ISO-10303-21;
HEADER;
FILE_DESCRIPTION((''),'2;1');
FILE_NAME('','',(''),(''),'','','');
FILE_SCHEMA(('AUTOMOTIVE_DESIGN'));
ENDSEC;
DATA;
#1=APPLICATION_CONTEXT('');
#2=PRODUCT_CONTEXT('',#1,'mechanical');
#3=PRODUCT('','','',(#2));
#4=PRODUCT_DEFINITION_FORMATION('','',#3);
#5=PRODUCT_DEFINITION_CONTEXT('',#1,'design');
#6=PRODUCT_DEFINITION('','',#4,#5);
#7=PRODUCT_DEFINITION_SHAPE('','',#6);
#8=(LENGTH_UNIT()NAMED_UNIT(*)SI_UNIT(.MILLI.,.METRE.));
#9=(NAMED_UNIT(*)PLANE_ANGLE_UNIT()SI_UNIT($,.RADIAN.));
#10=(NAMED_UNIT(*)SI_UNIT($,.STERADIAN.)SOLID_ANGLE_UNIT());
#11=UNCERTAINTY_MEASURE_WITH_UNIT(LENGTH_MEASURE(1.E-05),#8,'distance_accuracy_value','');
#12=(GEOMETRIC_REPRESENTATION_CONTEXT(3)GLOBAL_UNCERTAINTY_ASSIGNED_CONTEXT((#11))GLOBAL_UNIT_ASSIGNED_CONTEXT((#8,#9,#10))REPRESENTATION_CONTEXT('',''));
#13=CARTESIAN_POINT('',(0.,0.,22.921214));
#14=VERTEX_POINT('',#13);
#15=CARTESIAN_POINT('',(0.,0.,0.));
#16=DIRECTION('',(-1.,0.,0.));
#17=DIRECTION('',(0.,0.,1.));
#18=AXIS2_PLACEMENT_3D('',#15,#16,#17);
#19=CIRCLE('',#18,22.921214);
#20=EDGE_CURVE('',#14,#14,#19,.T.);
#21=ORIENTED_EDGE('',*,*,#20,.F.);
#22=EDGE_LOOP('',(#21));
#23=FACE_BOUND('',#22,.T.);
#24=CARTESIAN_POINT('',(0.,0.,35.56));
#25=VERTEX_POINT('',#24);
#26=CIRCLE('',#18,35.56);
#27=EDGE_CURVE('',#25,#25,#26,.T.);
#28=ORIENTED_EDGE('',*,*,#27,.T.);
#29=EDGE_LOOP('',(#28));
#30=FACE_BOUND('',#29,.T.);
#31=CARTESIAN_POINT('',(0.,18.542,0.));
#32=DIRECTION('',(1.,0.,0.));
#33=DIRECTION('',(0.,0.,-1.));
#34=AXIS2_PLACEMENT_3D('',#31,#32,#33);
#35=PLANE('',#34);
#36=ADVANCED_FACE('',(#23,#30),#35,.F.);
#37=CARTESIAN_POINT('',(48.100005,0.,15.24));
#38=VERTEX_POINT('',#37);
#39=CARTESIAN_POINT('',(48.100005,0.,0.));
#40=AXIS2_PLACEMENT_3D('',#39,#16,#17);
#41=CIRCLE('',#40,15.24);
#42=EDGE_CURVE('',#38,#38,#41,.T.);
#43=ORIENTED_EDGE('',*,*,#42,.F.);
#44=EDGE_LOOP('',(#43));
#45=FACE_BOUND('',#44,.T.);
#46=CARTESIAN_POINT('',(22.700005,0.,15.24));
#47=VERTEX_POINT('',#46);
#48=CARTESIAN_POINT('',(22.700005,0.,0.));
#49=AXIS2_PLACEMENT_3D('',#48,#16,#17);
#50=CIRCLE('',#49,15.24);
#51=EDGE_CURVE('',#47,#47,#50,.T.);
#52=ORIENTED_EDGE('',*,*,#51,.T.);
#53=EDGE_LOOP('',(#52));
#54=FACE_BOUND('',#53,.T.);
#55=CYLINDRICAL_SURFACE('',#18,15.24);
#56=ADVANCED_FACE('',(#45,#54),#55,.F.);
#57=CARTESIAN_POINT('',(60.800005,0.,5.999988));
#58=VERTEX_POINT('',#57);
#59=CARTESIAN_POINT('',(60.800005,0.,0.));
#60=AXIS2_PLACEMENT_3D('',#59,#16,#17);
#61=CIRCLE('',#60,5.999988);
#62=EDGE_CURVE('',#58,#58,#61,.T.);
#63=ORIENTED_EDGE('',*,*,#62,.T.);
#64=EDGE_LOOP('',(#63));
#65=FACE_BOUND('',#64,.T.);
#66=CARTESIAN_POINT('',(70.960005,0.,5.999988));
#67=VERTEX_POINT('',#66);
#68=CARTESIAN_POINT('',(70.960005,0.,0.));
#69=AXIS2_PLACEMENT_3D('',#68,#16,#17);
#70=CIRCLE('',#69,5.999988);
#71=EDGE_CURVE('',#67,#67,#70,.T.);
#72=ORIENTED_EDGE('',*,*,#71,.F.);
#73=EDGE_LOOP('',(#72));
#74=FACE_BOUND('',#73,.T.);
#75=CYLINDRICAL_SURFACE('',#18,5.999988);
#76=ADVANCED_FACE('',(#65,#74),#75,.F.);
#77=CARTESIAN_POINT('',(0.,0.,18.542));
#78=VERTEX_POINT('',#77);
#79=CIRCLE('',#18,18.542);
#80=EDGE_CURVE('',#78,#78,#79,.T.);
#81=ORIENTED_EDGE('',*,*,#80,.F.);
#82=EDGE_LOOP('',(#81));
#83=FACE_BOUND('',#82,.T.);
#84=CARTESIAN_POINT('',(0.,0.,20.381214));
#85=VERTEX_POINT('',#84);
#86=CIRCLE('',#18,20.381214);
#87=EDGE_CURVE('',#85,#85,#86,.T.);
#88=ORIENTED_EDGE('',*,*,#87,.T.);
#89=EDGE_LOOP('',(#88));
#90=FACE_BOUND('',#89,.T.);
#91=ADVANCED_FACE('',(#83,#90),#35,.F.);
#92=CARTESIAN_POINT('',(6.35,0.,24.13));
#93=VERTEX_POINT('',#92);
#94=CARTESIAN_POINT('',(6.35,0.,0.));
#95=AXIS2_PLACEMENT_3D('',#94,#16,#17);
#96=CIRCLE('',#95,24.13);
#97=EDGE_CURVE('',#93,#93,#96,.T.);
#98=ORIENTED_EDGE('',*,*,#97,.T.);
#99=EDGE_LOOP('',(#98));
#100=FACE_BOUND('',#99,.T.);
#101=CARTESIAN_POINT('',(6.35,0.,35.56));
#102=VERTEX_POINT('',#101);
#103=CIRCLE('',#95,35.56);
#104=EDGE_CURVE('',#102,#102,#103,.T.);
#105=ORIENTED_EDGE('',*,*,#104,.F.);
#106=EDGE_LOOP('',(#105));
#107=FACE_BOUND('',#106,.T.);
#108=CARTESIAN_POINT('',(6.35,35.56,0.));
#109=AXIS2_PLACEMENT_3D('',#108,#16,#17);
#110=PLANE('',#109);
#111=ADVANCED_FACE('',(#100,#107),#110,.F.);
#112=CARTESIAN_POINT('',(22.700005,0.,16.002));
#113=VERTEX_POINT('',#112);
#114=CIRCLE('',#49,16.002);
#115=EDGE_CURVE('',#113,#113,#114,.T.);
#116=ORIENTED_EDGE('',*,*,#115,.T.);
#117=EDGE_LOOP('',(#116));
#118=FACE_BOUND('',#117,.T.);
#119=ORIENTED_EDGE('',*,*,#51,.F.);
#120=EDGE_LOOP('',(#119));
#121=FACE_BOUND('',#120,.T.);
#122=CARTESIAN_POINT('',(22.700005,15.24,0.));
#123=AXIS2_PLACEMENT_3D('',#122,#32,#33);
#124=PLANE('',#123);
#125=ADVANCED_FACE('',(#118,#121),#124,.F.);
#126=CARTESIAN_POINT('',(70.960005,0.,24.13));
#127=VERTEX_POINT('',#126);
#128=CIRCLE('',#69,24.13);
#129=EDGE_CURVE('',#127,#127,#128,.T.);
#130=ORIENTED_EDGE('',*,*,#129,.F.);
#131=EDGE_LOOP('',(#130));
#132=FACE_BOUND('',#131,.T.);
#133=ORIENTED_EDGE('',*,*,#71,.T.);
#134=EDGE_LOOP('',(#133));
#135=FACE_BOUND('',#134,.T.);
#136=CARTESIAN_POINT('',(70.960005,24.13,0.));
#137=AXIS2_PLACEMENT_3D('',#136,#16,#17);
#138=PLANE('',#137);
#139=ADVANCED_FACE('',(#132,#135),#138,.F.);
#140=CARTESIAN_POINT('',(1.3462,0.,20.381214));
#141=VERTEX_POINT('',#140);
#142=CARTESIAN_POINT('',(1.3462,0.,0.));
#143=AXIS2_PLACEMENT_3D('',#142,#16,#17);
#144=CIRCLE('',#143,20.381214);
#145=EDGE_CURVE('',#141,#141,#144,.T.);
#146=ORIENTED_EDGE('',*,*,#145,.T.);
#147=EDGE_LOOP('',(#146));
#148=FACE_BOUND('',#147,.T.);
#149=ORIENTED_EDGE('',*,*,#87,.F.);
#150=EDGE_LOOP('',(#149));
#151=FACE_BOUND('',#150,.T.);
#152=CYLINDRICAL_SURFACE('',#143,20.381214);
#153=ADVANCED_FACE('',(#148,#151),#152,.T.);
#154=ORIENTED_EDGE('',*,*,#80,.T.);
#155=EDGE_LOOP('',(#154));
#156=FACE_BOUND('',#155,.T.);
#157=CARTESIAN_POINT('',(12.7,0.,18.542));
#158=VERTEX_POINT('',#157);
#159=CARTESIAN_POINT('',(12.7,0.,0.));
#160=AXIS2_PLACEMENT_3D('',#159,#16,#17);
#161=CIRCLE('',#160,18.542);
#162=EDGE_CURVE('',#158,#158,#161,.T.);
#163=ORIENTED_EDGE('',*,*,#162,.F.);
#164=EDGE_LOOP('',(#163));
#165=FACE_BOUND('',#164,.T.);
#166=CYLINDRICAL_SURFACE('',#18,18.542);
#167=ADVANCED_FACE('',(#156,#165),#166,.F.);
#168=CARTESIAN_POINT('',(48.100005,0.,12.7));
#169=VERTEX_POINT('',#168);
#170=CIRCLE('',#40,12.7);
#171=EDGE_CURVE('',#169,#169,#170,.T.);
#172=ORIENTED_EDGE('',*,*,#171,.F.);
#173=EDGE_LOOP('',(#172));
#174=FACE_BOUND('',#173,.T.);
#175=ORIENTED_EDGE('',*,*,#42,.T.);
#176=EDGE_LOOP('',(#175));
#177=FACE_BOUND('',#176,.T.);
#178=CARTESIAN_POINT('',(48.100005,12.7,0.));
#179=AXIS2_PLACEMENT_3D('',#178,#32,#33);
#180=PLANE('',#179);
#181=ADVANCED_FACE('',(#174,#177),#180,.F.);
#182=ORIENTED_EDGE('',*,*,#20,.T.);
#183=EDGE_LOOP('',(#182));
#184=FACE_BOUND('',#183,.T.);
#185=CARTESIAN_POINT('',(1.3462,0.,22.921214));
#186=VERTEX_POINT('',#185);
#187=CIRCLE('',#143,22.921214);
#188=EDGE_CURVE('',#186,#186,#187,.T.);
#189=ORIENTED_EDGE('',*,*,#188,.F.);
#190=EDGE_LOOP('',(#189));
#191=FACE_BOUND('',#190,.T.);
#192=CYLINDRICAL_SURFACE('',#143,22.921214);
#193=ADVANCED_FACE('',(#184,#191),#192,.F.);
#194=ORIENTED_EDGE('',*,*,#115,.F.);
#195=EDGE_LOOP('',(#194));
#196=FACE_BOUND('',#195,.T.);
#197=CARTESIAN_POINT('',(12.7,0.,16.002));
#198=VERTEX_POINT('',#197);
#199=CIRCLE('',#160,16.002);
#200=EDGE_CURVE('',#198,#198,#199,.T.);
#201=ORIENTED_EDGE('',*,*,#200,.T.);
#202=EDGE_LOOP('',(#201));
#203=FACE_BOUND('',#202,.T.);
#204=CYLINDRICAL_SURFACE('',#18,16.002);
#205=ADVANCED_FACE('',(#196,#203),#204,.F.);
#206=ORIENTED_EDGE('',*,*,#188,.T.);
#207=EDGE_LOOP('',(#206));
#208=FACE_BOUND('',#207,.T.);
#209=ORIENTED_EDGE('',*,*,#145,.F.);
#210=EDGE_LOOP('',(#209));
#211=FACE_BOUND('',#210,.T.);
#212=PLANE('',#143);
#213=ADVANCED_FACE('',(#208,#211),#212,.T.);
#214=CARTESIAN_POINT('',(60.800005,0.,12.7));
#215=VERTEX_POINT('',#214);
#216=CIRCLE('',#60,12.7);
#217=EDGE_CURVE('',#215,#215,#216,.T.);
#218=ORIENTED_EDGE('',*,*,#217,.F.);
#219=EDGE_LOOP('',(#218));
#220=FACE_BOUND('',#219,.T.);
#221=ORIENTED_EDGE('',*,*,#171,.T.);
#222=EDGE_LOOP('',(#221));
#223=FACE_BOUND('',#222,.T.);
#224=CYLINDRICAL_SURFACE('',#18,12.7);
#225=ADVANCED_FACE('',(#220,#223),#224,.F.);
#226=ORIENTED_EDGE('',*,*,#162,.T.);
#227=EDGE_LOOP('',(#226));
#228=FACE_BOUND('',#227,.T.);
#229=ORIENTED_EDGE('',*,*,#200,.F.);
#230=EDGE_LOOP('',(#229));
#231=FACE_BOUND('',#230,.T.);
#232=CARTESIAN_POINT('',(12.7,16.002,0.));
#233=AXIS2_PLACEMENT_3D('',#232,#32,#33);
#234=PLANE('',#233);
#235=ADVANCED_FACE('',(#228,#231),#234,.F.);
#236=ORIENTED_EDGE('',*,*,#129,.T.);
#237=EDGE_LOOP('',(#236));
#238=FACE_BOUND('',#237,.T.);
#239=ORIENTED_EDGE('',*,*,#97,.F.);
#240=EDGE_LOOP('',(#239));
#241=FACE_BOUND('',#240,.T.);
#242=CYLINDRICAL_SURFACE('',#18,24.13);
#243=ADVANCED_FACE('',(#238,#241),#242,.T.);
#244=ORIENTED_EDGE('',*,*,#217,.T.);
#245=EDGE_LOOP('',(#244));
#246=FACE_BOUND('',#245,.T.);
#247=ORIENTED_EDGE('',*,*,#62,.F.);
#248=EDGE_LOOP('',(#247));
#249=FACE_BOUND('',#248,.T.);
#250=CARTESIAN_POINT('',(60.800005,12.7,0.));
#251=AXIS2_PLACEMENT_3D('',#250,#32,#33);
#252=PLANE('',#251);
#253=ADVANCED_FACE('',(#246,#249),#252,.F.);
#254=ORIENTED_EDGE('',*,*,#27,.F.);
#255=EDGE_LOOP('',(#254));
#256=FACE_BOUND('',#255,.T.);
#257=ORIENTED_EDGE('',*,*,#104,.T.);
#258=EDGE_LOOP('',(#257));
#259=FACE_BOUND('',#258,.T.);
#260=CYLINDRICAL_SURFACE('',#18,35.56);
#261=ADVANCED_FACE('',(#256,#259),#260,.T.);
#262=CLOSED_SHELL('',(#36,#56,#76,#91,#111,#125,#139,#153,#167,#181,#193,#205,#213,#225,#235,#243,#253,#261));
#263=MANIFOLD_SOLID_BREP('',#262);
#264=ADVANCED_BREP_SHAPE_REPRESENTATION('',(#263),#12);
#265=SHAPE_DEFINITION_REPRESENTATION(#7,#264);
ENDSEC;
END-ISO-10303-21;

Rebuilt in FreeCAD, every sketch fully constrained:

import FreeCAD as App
import Part
import Sketcher

V = App.Vector
Q = App.Units.Quantity

doc = App.newDocument("Part")
params = doc.addObject("Spreadsheet::Sheet", "Params")
for row, (alias, value) in enumerate([
    ("sketch1_width", "1 in"),
    ("sketch1_width2", "0.5 in"),
    ("sketch1_width3", "0.4 in"),
    ("sketch1_height", "0.1 in"),
    ("sketch1_width4", "0.25 in"),
    ("revolution_angle", "360 deg"),
    ("pocket1_length", "0.053 in"),
], start=1):
    params.set(f"A{row}", alias)
    params.set(f"B{row}", "=" + value)
    params.setAlias(f"B{row}", alias)

body = doc.addObject("PartDesign::Body", "Body")

sketch1 = body.newObject("Sketcher::SketchObject", "Sketch")
sketch1.AttachmentSupport = (doc.getObject("XY_Plane"), [""])
sketch1.MapMode = "FlatFace"
sketch1.addGeometry(Part.LineSegment(V(6.3, 35.6, 0), V(0, 35.6, 0)), False)
sketch1.addGeometry(Part.LineSegment(V(0, 35.6, 0), V(0, 18.5, 0)), False)
sketch1.addGeometry(Part.LineSegment(V(0, 18.5, 0), V(12.7, 18.5, 0)), False)
sketch1.addGeometry(Part.LineSegment(V(12.7, 18.5, 0), V(12.7, 16, 0)), False)
sketch1.addGeometry(Part.LineSegment(V(12.7, 16, 0), V(22.7, 16, 0)), False)
sketch1.addGeometry(Part.LineSegment(V(22.7, 16, 0), V(22.7, 15.2, 0)), False)
sketch1.addGeometry(Part.LineSegment(V(22.7, 15.2, 0), V(48.1, 15.2, 0)), False)
sketch1.addGeometry(Part.LineSegment(V(48.1, 15.2, 0), V(48.1, 12.7, 0)), False)
sketch1.addGeometry(Part.LineSegment(V(48.1, 12.7, 0), V(60.8, 12.7, 0)), False)
sketch1.addGeometry(Part.LineSegment(V(60.8, 12.7, 0), V(60.8, 6, 0)), False)
sketch1.addGeometry(Part.LineSegment(V(60.8, 6, 0), V(71, 6, 0)), False)
sketch1.addGeometry(Part.LineSegment(V(71, 6, 0), V(71, 24.1, 0)), False)
sketch1.addGeometry(Part.LineSegment(V(71, 24.1, 0), V(6.3, 24.1, 0)), False)
sketch1.addGeometry(Part.LineSegment(V(6.3, 24.1, 0), V(6.3, 35.6, 0)), False)
sketch1.addConstraint(Sketcher.Constraint("Coincident", 0, 2, 1, 1))
sketch1.addConstraint(Sketcher.Constraint("Coincident", 1, 2, 2, 1))
sketch1.addConstraint(Sketcher.Constraint("Coincident", 2, 2, 3, 1))
sketch1.addConstraint(Sketcher.Constraint("Coincident", 3, 2, 4, 1))
sketch1.addConstraint(Sketcher.Constraint("Coincident", 4, 2, 5, 1))
sketch1.addConstraint(Sketcher.Constraint("Coincident", 5, 2, 6, 1))
sketch1.addConstraint(Sketcher.Constraint("Coincident", 6, 2, 7, 1))
sketch1.addConstraint(Sketcher.Constraint("Coincident", 7, 2, 8, 1))
sketch1.addConstraint(Sketcher.Constraint("Coincident", 8, 2, 9, 1))
sketch1.addConstraint(Sketcher.Constraint("Coincident", 9, 2, 10, 1))
sketch1.addConstraint(Sketcher.Constraint("Coincident", 10, 2, 11, 1))
sketch1.addConstraint(Sketcher.Constraint("Coincident", 11, 2, 12, 1))
sketch1.addConstraint(Sketcher.Constraint("Coincident", 12, 2, 13, 1))
sketch1.addConstraint(Sketcher.Constraint("Coincident", 13, 2, 0, 1))
sketch1.addConstraint(Sketcher.Constraint("Horizontal", 0))
sketch1.addConstraint(Sketcher.Constraint("Vertical", 1))
sketch1.addConstraint(Sketcher.Constraint("Horizontal", 2))
sketch1.addConstraint(Sketcher.Constraint("Vertical", 3))
sketch1.addConstraint(Sketcher.Constraint("Horizontal", 4))
sketch1.addConstraint(Sketcher.Constraint("Vertical", 5))
sketch1.addConstraint(Sketcher.Constraint("Horizontal", 6))
sketch1.addConstraint(Sketcher.Constraint("Vertical", 7))
sketch1.addConstraint(Sketcher.Constraint("Horizontal", 8))
sketch1.addConstraint(Sketcher.Constraint("Vertical", 9))
sketch1.addConstraint(Sketcher.Constraint("Horizontal", 10))
sketch1.addConstraint(Sketcher.Constraint("Vertical", 11))
sketch1.addConstraint(Sketcher.Constraint("Horizontal", 12))
sketch1.addConstraint(Sketcher.Constraint("Vertical", 13))
sketch1.addConstraint(Sketcher.Constraint("PointOnObject", 0, 2, -2))
sketch1.addConstraint(Sketcher.Constraint("Equal", 2, 8))
sketch1.addConstraint(Sketcher.Constraint("Equal", 3, 7))
sketch1.addConstraint(Sketcher.Constraint("DistanceX", 6, 1, 6, 2, Q("1 in")))
sketch1.addConstraint(Sketcher.Constraint("DistanceX", 2, 1, 2, 2, Q("0.5 in")))
sketch1.addConstraint(Sketcher.Constraint("DistanceX", 10, 1, 10, 2, Q("0.4 in")))
sketch1.addConstraint(Sketcher.Constraint("DistanceY", 3, 2, 3, 1, Q("0.1 in")))
sketch1.addConstraint(Sketcher.Constraint("DistanceX", 0, 2, 0, 1, Q("0.25 in")))
sketch1.addConstraint(Sketcher.Constraint("DistanceY", 1, 2, 1, 1, Q("0.67 in")))
sketch1.addConstraint(Sketcher.Constraint("DistanceY", 5, 2, 5, 1, Q("0.03 in")))
sketch1.addConstraint(Sketcher.Constraint("DistanceY", 13, 1, 13, 2, Q("0.45 in")))
sketch1.addConstraint(Sketcher.Constraint("DistanceY", -1, 1, 0, 2, Q("1.4 in")))
sketch1.addConstraint(Sketcher.Constraint("DistanceY", 9, 2, 9, 1, Q("6.700012 mm")))
sketch1.addConstraint(Sketcher.Constraint("DistanceX", 4, 1, 4, 2, Q("10.000005 mm")))
sketch1.setExpression("Constraints[31]", "Params.sketch1_width")
sketch1.setExpression("Constraints[32]", "Params.sketch1_width2")
sketch1.setExpression("Constraints[33]", "Params.sketch1_width3")
sketch1.setExpression("Constraints[34]", "Params.sketch1_height")
sketch1.setExpression("Constraints[35]", "Params.sketch1_width4")
revolution = body.newObject("PartDesign::Revolution", "Revolution")
revolution.Profile = sketch1
revolution.ReferenceAxis = (sketch1, ["H_Axis"])
revolution.setExpression("Angle", "Params.revolution_angle")

sketch2 = body.newObject("Sketcher::SketchObject", "Sketch001")
sketch2.AttachmentSupport = (doc.getObject("YZ_Plane"), [""])
sketch2.MapMode = "FlatFace"
sketch2.addGeometry(Part.Circle(V(0, 0, 0), V(0, 0, 1), 23), False)
sketch2.addGeometry(Part.Circle(V(0, 0, 0), V(0, 0, 1), 20), False)
sketch2.addConstraint(Sketcher.Constraint("Coincident", 0, 3, -1, 1))
sketch2.addConstraint(Sketcher.Constraint("Coincident", 1, 3, -1, 1))
sketch2.addConstraint(Sketcher.Constraint("Diameter", 0, Q("45.842428 mm")))
sketch2.addConstraint(Sketcher.Constraint("Diameter", 1, Q("40.762428 mm")))
pocket1 = body.newObject("PartDesign::Pocket", "Pocket")
pocket1.Profile = sketch2
pocket1.setExpression("Length", "Params.pocket1_length")
pocket1.Reversed = True

doc.recompute()
